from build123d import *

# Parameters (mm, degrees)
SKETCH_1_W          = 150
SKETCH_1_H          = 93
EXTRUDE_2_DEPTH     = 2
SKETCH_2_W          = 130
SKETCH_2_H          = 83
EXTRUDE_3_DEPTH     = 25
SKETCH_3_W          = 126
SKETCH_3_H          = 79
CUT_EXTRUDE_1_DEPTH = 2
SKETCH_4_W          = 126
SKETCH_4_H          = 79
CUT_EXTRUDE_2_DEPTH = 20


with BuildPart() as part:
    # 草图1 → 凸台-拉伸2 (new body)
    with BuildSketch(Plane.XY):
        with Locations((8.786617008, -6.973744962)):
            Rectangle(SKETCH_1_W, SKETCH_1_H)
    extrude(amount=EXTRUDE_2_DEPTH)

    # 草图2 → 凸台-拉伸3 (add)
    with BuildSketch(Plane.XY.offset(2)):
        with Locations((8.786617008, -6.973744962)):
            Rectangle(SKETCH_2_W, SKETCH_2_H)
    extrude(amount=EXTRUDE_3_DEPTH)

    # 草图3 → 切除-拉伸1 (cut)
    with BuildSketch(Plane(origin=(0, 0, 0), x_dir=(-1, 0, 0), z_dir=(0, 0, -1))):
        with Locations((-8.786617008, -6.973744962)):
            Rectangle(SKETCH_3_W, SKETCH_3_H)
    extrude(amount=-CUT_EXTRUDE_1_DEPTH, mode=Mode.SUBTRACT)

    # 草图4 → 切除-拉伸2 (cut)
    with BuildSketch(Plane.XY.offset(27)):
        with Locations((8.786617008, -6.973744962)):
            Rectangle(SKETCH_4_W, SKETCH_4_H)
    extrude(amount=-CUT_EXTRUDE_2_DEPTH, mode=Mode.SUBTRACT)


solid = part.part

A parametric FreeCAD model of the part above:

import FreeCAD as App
import Part
import Sketcher

V = App.Vector
Q = App.Units.Quantity


def add_polygon(sketch, points):
    """Adds a closed chain of lines whose ends are joined by coincident constraints."""
    first, n = sketch.GeometryCount, len(points)
    for a, b in zip(points, points[1:] + points[:1]):
        sketch.addGeometry(Part.LineSegment(App.Vector(*a, 0), App.Vector(*b, 0)), False)
    for i in range(n):
        sketch.addConstraint(Sketcher.Constraint("Coincident", first + i, 2, first + (i + 1) % n, 1))

doc = App.newDocument("Part")
body = doc.addObject("PartDesign::Body", "Body")

# Sketch on XY plane
sketch1 = body.newObject("Sketcher::SketchObject", "Sketch")
sketch1.AttachmentSupport = (doc.getObject("XY_Plane"), [""])
sketch1.MapMode = "FlatFace"
add_polygon(sketch1, [(-66, 40), (-66, -53), (84, -53), (84, 40)])  # lines 0-3
sketch1.addConstraint([
    Sketcher.Constraint("Vertical", 0),
    Sketcher.Constraint("Horizontal", 1),
    Sketcher.Constraint("Vertical", 2),
    Sketcher.Constraint("Horizontal", 3),
    Sketcher.Constraint("DistanceX", 1, 1, 1, 2, Q("150 mm")),
    Sketcher.Constraint("DistanceY", 0, 2, 0, 1, Q("93 mm")),
    Sketcher.Constraint("DistanceX", 0, 2, -1, 1, Q("66.213383 mm")),
    Sketcher.Constraint("DistanceY", 0, 2, -1, 1, Q("53.473745 mm")),
])
pad1 = body.newObject("PartDesign::Pad", "Pad")
pad1.Profile = sketch1
pad1.Length = 2

# Sketch on XY plane
sketch2 = body.newObject("Sketcher::SketchObject", "Sketch001")
sketch2.AttachmentSupport = (doc.getObject("XY_Plane"), [""])
sketch2.MapMode = "FlatFace"
sketch2.AttachmentOffset = App.Placement(V(0, 0, 2), App.Rotation())
add_polygon(sketch2, [(-56, 35), (-56, -48), (74, -48), (74, 35)])  # lines 0-3
sketch2.addConstraint([
    Sketcher.Constraint("Vertical", 0),
    Sketcher.Constraint("Horizontal", 1),
    Sketcher.Constraint("Vertical", 2),
    Sketcher.Constraint("Horizontal", 3),
    Sketcher.Constraint("DistanceX", 1, 1, 1, 2, Q("130 mm")),
    Sketcher.Constraint("DistanceY", 0, 2, 0, 1, Q("83 mm")),
    Sketcher.Constraint("DistanceX", 0, 2, -1, 1, Q("56.213383 mm")),
    Sketcher.Constraint("DistanceY", 0, 2, -1, 1, Q("48.473745 mm")),
])
pad2 = body.newObject("PartDesign::Pad", "Pad001")
pad2.Profile = sketch2
pad2.Length = 25

# Sketch on XY plane
sketch3 = body.newObject("Sketcher::SketchObject", "Sketch002")
sketch3.AttachmentSupport = (doc.getObject("XY_Plane"), [""])
sketch3.MapMode = "FlatFace"
add_polygon(sketch3, [(72, 33), (72, -46), (-54, -46), (-54, 33)])  # lines 0-3
sketch3.addConstraint([
    Sketcher.Constraint("Vertical", 0),
    Sketcher.Constraint("Horizontal", 1),
    Sketcher.Constraint("Vertical", 2),
    Sketcher.Constraint("Horizontal", 3),
    Sketcher.Constraint("DistanceX", 1, 2, 1, 1, Q("126 mm")),
    Sketcher.Constraint("DistanceY", 0, 2, 0, 1, Q("79 mm")),
    Sketcher.Constraint("DistanceX", -1, 1, 0, 2, Q("71.786617 mm")),
    Sketcher.Constraint("DistanceY", 0, 2, -1, 1, Q("46.473745 mm")),
])
pocket1 = body.newObject("PartDesign::Pocket", "Pocket")
pocket1.Profile = sketch3
pocket1.Length = 2
pocket1.Reversed = True

# Sketch on XY plane
sketch4 = body.newObject("Sketcher::SketchObject", "Sketch003")
sketch4.AttachmentSupport = (doc.getObject("XY_Plane"), [""])
sketch4.MapMode = "FlatFace"
sketch4.AttachmentOffset = App.Placement(V(0, 0, 27), App.Rotation())
add_polygon(sketch4, [(-54, 33), (-54, -46), (72, -46), (72, 33)])  # lines 0-3
sketch4.addConstraint([
    Sketcher.Constraint("Vertical", 0),
    Sketcher.Constraint("Horizontal", 1),
    Sketcher.Constraint("Vertical", 2),
    Sketcher.Constraint("Horizontal", 3),
    Sketcher.Constraint("DistanceX", 1, 1, 1, 2, Q("126 mm")),
    Sketcher.Constraint("DistanceY", 0, 2, 0, 1, Q("79 mm")),
    Sketcher.Constraint("DistanceX", 0, 2, -1, 1, Q("54.213383 mm")),
    Sketcher.Constraint("DistanceY", 0, 2, -1, 1, Q("46.473745 mm")),
])
pocket2 = body.newObject("PartDesign::Pocket", "Pocket001")
pocket2.Profile = sketch4
pocket2.Length = 20

doc.recompute()
